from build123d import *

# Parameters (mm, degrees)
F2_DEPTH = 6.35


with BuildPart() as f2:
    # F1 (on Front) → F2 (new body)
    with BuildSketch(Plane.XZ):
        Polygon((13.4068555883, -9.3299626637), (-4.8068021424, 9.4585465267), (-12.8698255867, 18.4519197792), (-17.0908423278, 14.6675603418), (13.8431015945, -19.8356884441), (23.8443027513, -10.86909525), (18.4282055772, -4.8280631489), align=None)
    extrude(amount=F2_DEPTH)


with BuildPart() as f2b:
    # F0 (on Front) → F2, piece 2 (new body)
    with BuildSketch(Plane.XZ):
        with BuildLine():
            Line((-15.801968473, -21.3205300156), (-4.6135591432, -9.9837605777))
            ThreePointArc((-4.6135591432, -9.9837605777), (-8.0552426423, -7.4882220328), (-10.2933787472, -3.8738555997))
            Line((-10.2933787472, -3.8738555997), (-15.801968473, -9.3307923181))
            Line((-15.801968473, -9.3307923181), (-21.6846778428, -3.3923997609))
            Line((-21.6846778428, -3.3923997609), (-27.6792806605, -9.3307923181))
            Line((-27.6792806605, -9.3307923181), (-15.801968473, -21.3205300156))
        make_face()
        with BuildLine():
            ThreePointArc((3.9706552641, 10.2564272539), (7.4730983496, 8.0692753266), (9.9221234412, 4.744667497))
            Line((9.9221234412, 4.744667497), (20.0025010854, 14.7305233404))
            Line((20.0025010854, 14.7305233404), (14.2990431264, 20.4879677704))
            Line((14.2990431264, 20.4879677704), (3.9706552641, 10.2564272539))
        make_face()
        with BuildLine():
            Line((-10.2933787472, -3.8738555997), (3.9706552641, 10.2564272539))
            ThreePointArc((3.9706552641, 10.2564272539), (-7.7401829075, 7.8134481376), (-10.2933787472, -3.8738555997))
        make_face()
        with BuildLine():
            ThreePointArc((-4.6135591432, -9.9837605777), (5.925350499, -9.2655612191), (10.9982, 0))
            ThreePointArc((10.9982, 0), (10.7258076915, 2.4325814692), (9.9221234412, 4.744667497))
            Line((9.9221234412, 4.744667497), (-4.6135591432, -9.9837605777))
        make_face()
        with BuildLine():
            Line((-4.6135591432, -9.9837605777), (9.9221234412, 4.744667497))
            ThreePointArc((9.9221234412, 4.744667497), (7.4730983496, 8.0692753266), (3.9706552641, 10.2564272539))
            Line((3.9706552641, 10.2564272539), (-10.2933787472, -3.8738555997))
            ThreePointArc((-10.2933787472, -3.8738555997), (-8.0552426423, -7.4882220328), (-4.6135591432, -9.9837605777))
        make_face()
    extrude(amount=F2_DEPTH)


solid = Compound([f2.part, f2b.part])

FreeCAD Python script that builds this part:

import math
import FreeCAD as App
import Part
import Sketcher
Q = App.Units.Quantity


def add_polygon(sketch, points):
    """Adds a closed chain of lines whose ends are joined by coincident constraints."""
    first, n = sketch.GeometryCount, len(points)
    for a, b in zip(points, points[1:] + points[:1]):
        sketch.addGeometry(Part.LineSegment(App.Vector(*a, 0), App.Vector(*b, 0)), False)
    for i in range(n):
        sketch.addConstraint(Sketcher.Constraint("Coincident", first + i, 2, first + (i + 1) % n, 1))

doc = App.newDocument("Part")
params = doc.addObject("Spreadsheet::Sheet", "Params")
for row, (alias, value) in enumerate([
    ("pad1_length", "0.25 in"),
    ("sketch2_radius", "0.433 in"),
    ("pad2_length", "0.25 in"),
], start=1):
    params.set(f"A{row}", alias)
    params.set(f"B{row}", "=" + value)
    params.setAlias(f"B{row}", alias)

body = doc.addObject("PartDesign::Body", "Body")

sketch1 = doc.addObject("Sketcher::SketchObject", "Sketch")
body.addObject(sketch1)
sketch1.AttachmentSupport = (doc.XZ_Plane, [""])
sketch1.MapMode = "FlatFace"
add_polygon(sketch1, [(13, -9), (-5, 9), (-13, 18), (-17, 15), (14, -20), (24, -11), (18, -5)])
sketch1.addConstraint([
    Sketcher.Constraint("Perpendicular", 1, 2),
    Sketcher.Constraint("Perpendicular", 2, 3),
    Sketcher.Constraint("Perpendicular", 3, 4),
    Sketcher.Constraint("Perpendicular", 4, 5),
    Sketcher.Constraint("Perpendicular", 5, 6),
    Sketcher.Constraint("DistanceX", -1, 1, 3, 2, Q("13.843102 mm")),
    Sketcher.Constraint("DistanceX", 3, 2, 4, 2, Q("10.001201 mm")),
    Sketcher.Constraint("DistanceY", 6, 2, 5, 2, Q("4.5019 mm")),
    Sketcher.Constraint("Distance", 0, Q("26.16764 mm")),
    Sketcher.Constraint("Distance", 2, Q("5.66907 mm")),
    Sketcher.Constraint("DistanceY", -1, 1, 1, 2, Q("18.45192 mm")),
    Sketcher.Constraint("DistanceY", -1, 1, 2, 2, Q("14.66756 mm")),
    Sketcher.Constraint("DistanceY", 3, 2, -1, 1, Q("19.835688 mm")),
    Sketcher.Constraint("DistanceX", 2, 2, 0, 2, Q("12.28404 mm")),
])
pad1 = doc.addObject("PartDesign::Pad", "Pad")
body.addObject(pad1)
pad1.Profile = sketch1
pad1.setExpression("Length", "Params.pad1_length")
body2 = doc.addObject("PartDesign::Body", "Body001")

sketch2 = doc.addObject("Sketcher::SketchObject", "Sketch001")
body2.addObject(sketch2)
sketch2.AttachmentSupport = (doc.getObject("XZ_Plane001"), [""])
sketch2.MapMode = "FlatFace"
sketch2.addGeometry([
    Part.LineSegment(App.Vector(-15.8, -21.3, 0), App.Vector(-4.6, -10, 0)),
    Part.ArcOfCircle(Part.Circle(App.Vector(0, 0, 0), App.Vector(0, 0, 1), 11), math.radians(-115), math.radians(0)),
    Part.ArcOfCircle(Part.Circle(App.Vector(0, 0, 0), App.Vector(0, 0, 1), 11), math.radians(0), math.radians(26)),
    Part.LineSegment(App.Vector(9.9, 4.7, 0), App.Vector(20, 14.7, 0)),
    Part.LineSegment(App.Vector(20, 14.7, 0), App.Vector(14.3, 20.5, 0)),
    Part.LineSegment(App.Vector(14.3, 20.5, 0), App.Vector(4, 10.3, 0)),
    Part.ArcOfCircle(Part.Circle(App.Vector(0, 0, 0), App.Vector(0, 0, 1), 11), math.radians(69), math.radians(201)),
    Part.LineSegment(App.Vector(-10.3, -3.9, 0), App.Vector(-15.8, -9.3, 0)),
    Part.LineSegment(App.Vector(-15.8, -9.3, 0), App.Vector(-21.7, -3.4, 0)),
    Part.LineSegment(App.Vector(-21.7, -3.4, 0), App.Vector(-27.7, -9.3, 0)),
    Part.LineSegment(App.Vector(-27.7, -9.3, 0), App.Vector(-15.8, -21.3, 0)),
], False)
sketch2.addConstraint([
    Sketcher.Constraint("Coincident", 0, 2, 1, 1),
    Sketcher.Constraint("Tangent", 1, 2, 2, 1),
    Sketcher.Constraint("Coincident", 2, 2, 3, 1),
    Sketcher.Constraint("Coincident", 3, 2, 4, 1),
    Sketcher.Constraint("Coincident", 4, 2, 5, 1),
    Sketcher.Constraint("Coincident", 5, 2, 6, 1),
    Sketcher.Constraint("Coincident", 6, 2, 7, 1),
    Sketcher.Constraint("Coincident", 7, 2, 8, 1),
    Sketcher.Constraint("Coincident", 8, 2, 9, 1),
    Sketcher.Constraint("Coincident", 9, 2, 10, 1),
    Sketcher.Constraint("Coincident", 10, 2, 0, 1),
    Sketcher.Constraint("Coincident", 1, 3, -1, 1),
    Sketcher.Constraint("Coincident", 6, 3, -1, 1),
    Sketcher.Constraint("Equal", 1, 2),
    Sketcher.Constraint("Equal", 2, 6),
    Sketcher.Constraint("PointOnObject", 1, 2, -1),
    Sketcher.Constraint("Perpendicular", 3, 4),
    Sketcher.Constraint("Perpendicular", 4, 5),
    Sketcher.Constraint("Parallel", 5, 7),
    Sketcher.Constraint("Perpendicular", 7, 8),
    Sketcher.Constraint("Perpendicular", 8, 9),
    Sketcher.Constraint("Perpendicular", 9, 10),
    Sketcher.Constraint("Horizontal", 7, 2, 9, 2),
    Sketcher.Constraint("Vertical", 7, 2, 10, 2),
    Sketcher.Constraint("Radius", 1, Q("0.433 in")),
    Sketcher.Constraint("DistanceX", -1, 1, 3, 2, Q("0.7875 in")),
    Sketcher.Constraint("DistanceY", 8, 2, -1, 1, Q("3.3924 mm")),
    Sketcher.Constraint("DistanceY", 2, 2, 4, 2, Q("15.7433 mm")),
    Sketcher.Constraint("DistanceX", 8, 2, 6, 2, Q("11.391299 mm")),
    Sketcher.Constraint("DistanceX", 9, 2, 6, 2, Q("17.385902 mm")),
    Sketcher.Constraint("Distance", 4, Q("8.104172 mm")),
    Sketcher.Constraint("Distance", 10, Q("16.87674 mm")),
    Sketcher.Constraint("DistanceX", 0, 2, -1, 1, Q("4.613559 mm")),
])
sketch2.setExpression("Constraints[24]", "Params.sketch2_radius")
pad2 = doc.addObject("PartDesign::Pad", "Pad001")
body2.addObject(pad2)
pad2.Profile = sketch2
pad2.setExpression("Length", "Params.pad2_length")

doc.recompute()
